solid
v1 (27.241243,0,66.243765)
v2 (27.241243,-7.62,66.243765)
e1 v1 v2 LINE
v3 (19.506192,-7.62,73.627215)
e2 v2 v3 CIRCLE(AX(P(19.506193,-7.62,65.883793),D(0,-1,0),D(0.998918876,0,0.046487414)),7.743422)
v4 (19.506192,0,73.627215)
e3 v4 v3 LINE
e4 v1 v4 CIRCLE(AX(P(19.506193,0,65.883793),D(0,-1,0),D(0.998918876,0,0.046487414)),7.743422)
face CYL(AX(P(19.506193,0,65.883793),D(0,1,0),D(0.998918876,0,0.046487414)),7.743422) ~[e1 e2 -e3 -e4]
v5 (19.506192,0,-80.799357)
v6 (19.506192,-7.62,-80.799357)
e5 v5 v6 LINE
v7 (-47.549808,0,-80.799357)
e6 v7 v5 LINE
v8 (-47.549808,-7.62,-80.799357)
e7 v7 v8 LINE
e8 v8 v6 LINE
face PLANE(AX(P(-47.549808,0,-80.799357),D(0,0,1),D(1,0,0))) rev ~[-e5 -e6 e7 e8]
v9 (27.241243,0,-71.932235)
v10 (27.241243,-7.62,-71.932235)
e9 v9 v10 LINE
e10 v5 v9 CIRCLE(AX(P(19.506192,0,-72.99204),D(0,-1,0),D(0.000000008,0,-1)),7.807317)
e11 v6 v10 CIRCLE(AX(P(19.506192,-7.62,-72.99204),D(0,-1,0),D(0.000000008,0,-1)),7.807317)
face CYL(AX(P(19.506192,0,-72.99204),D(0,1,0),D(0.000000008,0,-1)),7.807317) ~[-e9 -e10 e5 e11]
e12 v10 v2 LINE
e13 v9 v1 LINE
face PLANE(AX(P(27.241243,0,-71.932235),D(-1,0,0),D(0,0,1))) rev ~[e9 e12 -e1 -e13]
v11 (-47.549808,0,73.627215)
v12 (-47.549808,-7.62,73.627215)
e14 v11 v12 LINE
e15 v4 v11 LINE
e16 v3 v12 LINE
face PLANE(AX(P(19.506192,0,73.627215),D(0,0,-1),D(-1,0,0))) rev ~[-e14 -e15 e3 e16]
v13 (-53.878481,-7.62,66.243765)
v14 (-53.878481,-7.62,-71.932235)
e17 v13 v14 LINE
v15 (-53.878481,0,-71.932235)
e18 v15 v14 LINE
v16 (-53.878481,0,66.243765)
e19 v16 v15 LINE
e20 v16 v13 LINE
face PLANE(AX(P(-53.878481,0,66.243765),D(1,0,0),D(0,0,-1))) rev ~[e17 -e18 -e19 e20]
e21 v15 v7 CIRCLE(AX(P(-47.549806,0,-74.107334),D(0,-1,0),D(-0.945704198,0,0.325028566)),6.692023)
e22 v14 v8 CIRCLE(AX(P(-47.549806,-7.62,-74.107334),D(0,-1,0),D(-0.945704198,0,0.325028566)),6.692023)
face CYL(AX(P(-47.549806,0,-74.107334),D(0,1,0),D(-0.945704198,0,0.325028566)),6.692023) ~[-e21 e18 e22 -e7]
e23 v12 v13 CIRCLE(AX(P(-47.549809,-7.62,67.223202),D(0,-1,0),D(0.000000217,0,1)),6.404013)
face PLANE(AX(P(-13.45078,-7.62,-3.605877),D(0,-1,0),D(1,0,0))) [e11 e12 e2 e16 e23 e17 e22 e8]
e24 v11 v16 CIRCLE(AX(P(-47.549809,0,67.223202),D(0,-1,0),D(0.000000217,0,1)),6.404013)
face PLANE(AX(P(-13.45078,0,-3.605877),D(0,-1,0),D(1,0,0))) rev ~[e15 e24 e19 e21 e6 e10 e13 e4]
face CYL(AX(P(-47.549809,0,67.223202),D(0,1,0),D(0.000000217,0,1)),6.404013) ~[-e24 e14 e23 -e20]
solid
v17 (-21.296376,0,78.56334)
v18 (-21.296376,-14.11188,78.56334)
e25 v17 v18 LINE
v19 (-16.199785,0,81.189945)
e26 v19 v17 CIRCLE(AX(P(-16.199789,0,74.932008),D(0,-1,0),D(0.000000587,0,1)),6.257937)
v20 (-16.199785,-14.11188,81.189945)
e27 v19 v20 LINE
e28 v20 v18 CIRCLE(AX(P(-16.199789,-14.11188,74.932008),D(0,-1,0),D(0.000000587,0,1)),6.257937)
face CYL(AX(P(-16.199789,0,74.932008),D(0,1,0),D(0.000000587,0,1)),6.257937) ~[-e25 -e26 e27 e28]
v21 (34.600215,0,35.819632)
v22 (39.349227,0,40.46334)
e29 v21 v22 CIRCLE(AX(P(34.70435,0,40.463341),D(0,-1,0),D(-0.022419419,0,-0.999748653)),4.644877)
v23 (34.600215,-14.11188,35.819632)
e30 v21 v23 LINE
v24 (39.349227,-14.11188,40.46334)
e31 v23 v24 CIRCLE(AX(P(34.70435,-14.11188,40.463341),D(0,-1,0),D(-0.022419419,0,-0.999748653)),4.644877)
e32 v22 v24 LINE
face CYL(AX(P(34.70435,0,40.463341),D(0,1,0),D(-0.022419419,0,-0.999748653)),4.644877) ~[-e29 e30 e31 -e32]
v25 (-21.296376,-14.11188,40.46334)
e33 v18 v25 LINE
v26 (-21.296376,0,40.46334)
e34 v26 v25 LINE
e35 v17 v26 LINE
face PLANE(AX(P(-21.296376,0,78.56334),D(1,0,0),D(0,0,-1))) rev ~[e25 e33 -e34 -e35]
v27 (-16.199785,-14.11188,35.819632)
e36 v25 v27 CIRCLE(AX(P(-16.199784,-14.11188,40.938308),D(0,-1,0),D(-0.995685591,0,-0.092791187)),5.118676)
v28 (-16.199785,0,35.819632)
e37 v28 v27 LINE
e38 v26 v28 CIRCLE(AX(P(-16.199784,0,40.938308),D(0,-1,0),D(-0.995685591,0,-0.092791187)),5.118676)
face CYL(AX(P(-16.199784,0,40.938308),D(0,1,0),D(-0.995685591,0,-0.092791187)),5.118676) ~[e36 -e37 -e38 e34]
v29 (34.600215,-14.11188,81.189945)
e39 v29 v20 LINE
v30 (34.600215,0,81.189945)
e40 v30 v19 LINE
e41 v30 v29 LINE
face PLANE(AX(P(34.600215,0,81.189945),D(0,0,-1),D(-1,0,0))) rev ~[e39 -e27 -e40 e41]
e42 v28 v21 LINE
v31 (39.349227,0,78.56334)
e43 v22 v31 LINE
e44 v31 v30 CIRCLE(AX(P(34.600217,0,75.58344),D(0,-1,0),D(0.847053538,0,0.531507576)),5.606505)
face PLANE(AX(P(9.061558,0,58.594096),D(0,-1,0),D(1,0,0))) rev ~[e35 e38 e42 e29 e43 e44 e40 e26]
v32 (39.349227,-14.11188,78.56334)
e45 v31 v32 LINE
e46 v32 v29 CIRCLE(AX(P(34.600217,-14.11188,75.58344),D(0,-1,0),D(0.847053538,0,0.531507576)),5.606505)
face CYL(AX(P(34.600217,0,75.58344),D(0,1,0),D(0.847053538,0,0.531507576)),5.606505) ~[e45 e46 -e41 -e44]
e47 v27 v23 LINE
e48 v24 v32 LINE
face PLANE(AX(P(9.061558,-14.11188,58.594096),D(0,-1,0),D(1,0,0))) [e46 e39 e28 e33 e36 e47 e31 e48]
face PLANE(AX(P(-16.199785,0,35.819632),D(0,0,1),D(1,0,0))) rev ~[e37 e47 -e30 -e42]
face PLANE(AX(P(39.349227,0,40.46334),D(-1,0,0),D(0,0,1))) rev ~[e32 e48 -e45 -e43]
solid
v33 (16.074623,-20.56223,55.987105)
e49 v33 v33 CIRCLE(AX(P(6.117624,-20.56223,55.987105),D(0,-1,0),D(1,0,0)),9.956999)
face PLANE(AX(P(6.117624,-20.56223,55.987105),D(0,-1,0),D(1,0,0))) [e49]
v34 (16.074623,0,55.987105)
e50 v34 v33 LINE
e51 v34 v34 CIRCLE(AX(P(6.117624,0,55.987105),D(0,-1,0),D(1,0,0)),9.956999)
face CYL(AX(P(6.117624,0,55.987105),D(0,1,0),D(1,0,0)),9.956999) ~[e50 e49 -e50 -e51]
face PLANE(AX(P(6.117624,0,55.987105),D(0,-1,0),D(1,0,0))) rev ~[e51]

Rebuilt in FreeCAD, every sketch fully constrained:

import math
import FreeCAD as App
import Part
import Sketcher

V = App.Vector
Q = App.Units.Quantity

doc = App.newDocument("Part")
params = doc.addObject("Spreadsheet::Sheet", "Params")
for row, (alias, value) in enumerate([
    ("sketch1_width", "2.64 in"),
    ("sketch1_height", "5.44 in"),
    ("pad1_length", "0.3 in"),
    ("sketch2_width", "2 in"),
    ("sketch2_height", "1.5 in"),
    ("pad2_length", "14.11188 mm"),
    ("pad3_length", "20.56223 mm"),
], start=1):
    params.set(f"A{row}", alias)
    params.set(f"B{row}", "=" + value)
    params.setAlias(f"B{row}", alias)

body = doc.addObject("PartDesign::Body", "Body")

sketch1 = body.newObject("Sketcher::SketchObject", "Sketch")
sketch1.AttachmentSupport = (doc.getObject("XZ_Plane"), [""])
sketch1.MapMode = "FlatFace"
sketch1.addGeometry(Part.LineSegment(V(20, 74, 0), V(-48, 74, 0)), False)
sketch1.addGeometry(Part.ArcOfCircle(Part.Circle(V(-48, 67, 0), V(0, 0, 1), 6), math.radians(90), math.radians(189)), False)
sketch1.addGeometry(Part.LineSegment(V(-54, 66, 0), V(-54, -72, 0)), False)
sketch1.addGeometry(Part.ArcOfCircle(Part.Circle(V(-48, -74, 0), V(0, 0, 1), 7), math.radians(161), math.radians(270)), False)
sketch1.addGeometry(Part.LineSegment(V(-48, -81, 0), V(20, -81, 0)), False)
sketch1.addGeometry(Part.ArcOfCircle(Part.Circle(V(20, -73, 0), V(0, 0, 1), 8), math.radians(-90), math.radians(8)), False)
sketch1.addGeometry(Part.LineSegment(V(27, -72, 0), V(27, 66, 0)), False)
sketch1.addGeometry(Part.ArcOfCircle(Part.Circle(V(20, 66, 0), V(0, 0, 1), 8), math.radians(3), math.radians(90)), False)
sketch1.addConstraint(Sketcher.Constraint("Tangent", 0, 2, 1, 1))
sketch1.addConstraint(Sketcher.Constraint("Coincident", 1, 2, 2, 1))
sketch1.addConstraint(Sketcher.Constraint("Coincident", 2, 2, 3, 1))
sketch1.addConstraint(Sketcher.Constraint("Tangent", 3, 2, 4, 1))
sketch1.addConstraint(Sketcher.Constraint("Tangent", 4, 2, 5, 1))
sketch1.addConstraint(Sketcher.Constraint("Coincident", 5, 2, 6, 1))
sketch1.addConstraint(Sketcher.Constraint("Coincident", 6, 2, 7, 1))
sketch1.addConstraint(Sketcher.Constraint("Tangent", 7, 2, 0, 1))
sketch1.addConstraint(Sketcher.Constraint("Horizontal", 0))
sketch1.addConstraint(Sketcher.Constraint("Vertical", 2))
sketch1.addConstraint(Sketcher.Constraint("Horizontal", 4))
sketch1.addConstraint(Sketcher.Constraint("Vertical", 6))
sketch1.addConstraint(Sketcher.Constraint("Horizontal", 2, 2, 5, 2))
sketch1.addConstraint(Sketcher.Constraint("Horizontal", 1, 2, 6, 2))
sketch1.addConstraint(Sketcher.Constraint("Vertical", 5, 3, 7, 3))
sketch1.addConstraint(Sketcher.Constraint("Vertical", 3, 3, 0, 2))
sketch1.addConstraint(Sketcher.Constraint("DistanceX", 0, 2, 0, 1, Q("2.64 in")))
sketch1.addConstraint(Sketcher.Constraint("DistanceY", 2, 2, 2, 1, Q("5.44 in")))
sketch1.addConstraint(Sketcher.Constraint("Radius", 7, Q("7.743422 mm")))
sketch1.addConstraint(Sketcher.Constraint("DistanceX", 1, 2, -1, 1, Q("2.1212 in")))
sketch1.addConstraint(Sketcher.Constraint("Radius", 1, Q("6.404013 mm")))
sketch1.addConstraint(Sketcher.Constraint("Radius", 3, Q("6.692023 mm")))
sketch1.addConstraint(Sketcher.Constraint("Radius", 5, Q("7.807317 mm")))
sketch1.addConstraint(Sketcher.Constraint("DistanceY", 5, 3, -1, 1, Q("72.99204 mm")))
sketch1.setExpression("Constraints[16]", "Params.sketch1_width")
sketch1.setExpression("Constraints[17]", "Params.sketch1_height")
pad1 = body.newObject("PartDesign::Pad", "Pad")
pad1.Profile = sketch1
pad1.setExpression("Length", "Params.pad1_length")
body2 = doc.addObject("PartDesign::Body", "Body001")

sketch2 = body2.newObject("Sketcher::SketchObject", "Sketch001")
sketch2.AttachmentSupport = (doc.getObject("XZ_Plane001"), [""])
sketch2.MapMode = "FlatFace"
sketch2.addGeometry(Part.LineSegment(V(-16.2, 35.8, 0), V(34.6, 35.8, 0)), False)
sketch2.addGeometry(Part.ArcOfCircle(Part.Circle(V(34.7, 40.5, 0), V(0, 0, 1), 4.6), math.radians(-91), math.radians(0)), False)
sketch2.addGeometry(Part.LineSegment(V(39.3, 40.5, 0), V(39.3, 78.6, 0)), False)
sketch2.addGeometry(Part.ArcOfCircle(Part.Circle(V(34.6, 75.6, 0), V(0, 0, 1), 5.6), math.radians(32), math.radians(90)), False)
sketch2.addGeometry(Part.LineSegment(V(34.6, 81.2, 0), V(-16.2, 81.2, 0)), False)
sketch2.addGeometry(Part.ArcOfCircle(Part.Circle(V(-16.2, 74.9, 0), V(0, 0, 1), 6.3), math.radians(90), math.radians(145)), False)
sketch2.addGeometry(Part.LineSegment(V(-21.3, 78.6, 0), V(-21.3, 40.5, 0)), False)
sketch2.addGeometry(Part.ArcOfCircle(Part.Circle(V(-16.2, 40.9, 0), V(0, 0, 1), 5.1), math.radians(-175), math.radians(-90)), False)
sketch2.addConstraint(Sketcher.Constraint("Coincident", 0, 2, 1, 1))
sketch2.addConstraint(Sketcher.Constraint("Tangent", 1, 2, 2, 1))
sketch2.addConstraint(Sketcher.Constraint("Coincident", 2, 2, 3, 1))
sketch2.addConstraint(Sketcher.Constraint("Tangent", 3, 2, 4, 1))
sketch2.addConstraint(Sketcher.Constraint("Tangent", 4, 2, 5, 1))
sketch2.addConstraint(Sketcher.Constraint("Coincident", 5, 2, 6, 1))
sketch2.addConstraint(Sketcher.Constraint("Coincident", 6, 2, 7, 1))
sketch2.addConstraint(Sketcher.Constraint("Tangent", 7, 2, 0, 1))
sketch2.addConstraint(Sketcher.Constraint("Horizontal", 0))
sketch2.addConstraint(Sketcher.Constraint("Vertical", 2))
sketch2.addConstraint(Sketcher.Constraint("Horizontal", 4))
sketch2.addConstraint(Sketcher.Constraint("Vertical", 6))
sketch2.addConstraint(Sketcher.Constraint("Horizontal", 2, 2, 5, 2))
sketch2.addConstraint(Sketcher.Constraint("Horizontal", 1, 2, 6, 2))
sketch2.addConstraint(Sketcher.Constraint("Vertical", 0, 2, 3, 2))
sketch2.addConstraint(Sketcher.Constraint("Vertical", 7, 3, 4, 2))
sketch2.addConstraint(Sketcher.Constraint("DistanceX", 0, 1, 0, 2, Q("2 in")))
sketch2.addConstraint(Sketcher.Constraint("DistanceY", 2, 1, 2, 2, Q("1.5 in")))
sketch2.addConstraint(Sketcher.Constraint("Radius", 1, Q("4.644877 mm")))
sketch2.addConstraint(Sketcher.Constraint("Radius", 3, Q("5.606505 mm")))
sketch2.addConstraint(Sketcher.Constraint("Radius", 5, Q("6.257937 mm")))
sketch2.addConstraint(Sketcher.Constraint("Radius", 7, Q("5.118676 mm")))
sketch2.addConstraint(Sketcher.Constraint("DistanceX", -1, 1, 1, 3, Q("34.70435 mm")))
sketch2.addConstraint(Sketcher.Constraint("DistanceY", -1, 1, 1, 3, Q("40.463341 mm")))
sketch2.setExpression("Constraints[16]", "Params.sketch2_width")
sketch2.setExpression("Constraints[17]", "Params.sketch2_height")
pad2 = body2.newObject("PartDesign::Pad", "Pad001")
pad2.Profile = sketch2
pad2.setExpression("Length", "Params.pad2_length")
body3 = doc.addObject("PartDesign::Body", "Body002")

sketch3 = body3.newObject("Sketcher::SketchObject", "Sketch002")
sketch3.AttachmentSupport = (doc.getObject("XZ_Plane002"), [""])
sketch3.MapMode = "FlatFace"
sketch3.addGeometry(Part.Circle(V(6, 56, 0), V(0, 0, 1), 10), False)
sketch3.addConstraint(Sketcher.Constraint("Diameter", 0, Q("19.913998 mm")))
sketch3.addConstraint(Sketcher.Constraint("DistanceX", -1, 1, 0, 3, Q("6.117624 mm")))
sketch3.addConstraint(Sketcher.Constraint("DistanceY", -1, 1, 0, 3, Q("55.987105 mm")))
pad3 = body3.newObject("PartDesign::Pad", "Pad002")
pad3.Profile = sketch3
pad3.setExpression("Length", "Params.pad3_length")

doc.recompute()
